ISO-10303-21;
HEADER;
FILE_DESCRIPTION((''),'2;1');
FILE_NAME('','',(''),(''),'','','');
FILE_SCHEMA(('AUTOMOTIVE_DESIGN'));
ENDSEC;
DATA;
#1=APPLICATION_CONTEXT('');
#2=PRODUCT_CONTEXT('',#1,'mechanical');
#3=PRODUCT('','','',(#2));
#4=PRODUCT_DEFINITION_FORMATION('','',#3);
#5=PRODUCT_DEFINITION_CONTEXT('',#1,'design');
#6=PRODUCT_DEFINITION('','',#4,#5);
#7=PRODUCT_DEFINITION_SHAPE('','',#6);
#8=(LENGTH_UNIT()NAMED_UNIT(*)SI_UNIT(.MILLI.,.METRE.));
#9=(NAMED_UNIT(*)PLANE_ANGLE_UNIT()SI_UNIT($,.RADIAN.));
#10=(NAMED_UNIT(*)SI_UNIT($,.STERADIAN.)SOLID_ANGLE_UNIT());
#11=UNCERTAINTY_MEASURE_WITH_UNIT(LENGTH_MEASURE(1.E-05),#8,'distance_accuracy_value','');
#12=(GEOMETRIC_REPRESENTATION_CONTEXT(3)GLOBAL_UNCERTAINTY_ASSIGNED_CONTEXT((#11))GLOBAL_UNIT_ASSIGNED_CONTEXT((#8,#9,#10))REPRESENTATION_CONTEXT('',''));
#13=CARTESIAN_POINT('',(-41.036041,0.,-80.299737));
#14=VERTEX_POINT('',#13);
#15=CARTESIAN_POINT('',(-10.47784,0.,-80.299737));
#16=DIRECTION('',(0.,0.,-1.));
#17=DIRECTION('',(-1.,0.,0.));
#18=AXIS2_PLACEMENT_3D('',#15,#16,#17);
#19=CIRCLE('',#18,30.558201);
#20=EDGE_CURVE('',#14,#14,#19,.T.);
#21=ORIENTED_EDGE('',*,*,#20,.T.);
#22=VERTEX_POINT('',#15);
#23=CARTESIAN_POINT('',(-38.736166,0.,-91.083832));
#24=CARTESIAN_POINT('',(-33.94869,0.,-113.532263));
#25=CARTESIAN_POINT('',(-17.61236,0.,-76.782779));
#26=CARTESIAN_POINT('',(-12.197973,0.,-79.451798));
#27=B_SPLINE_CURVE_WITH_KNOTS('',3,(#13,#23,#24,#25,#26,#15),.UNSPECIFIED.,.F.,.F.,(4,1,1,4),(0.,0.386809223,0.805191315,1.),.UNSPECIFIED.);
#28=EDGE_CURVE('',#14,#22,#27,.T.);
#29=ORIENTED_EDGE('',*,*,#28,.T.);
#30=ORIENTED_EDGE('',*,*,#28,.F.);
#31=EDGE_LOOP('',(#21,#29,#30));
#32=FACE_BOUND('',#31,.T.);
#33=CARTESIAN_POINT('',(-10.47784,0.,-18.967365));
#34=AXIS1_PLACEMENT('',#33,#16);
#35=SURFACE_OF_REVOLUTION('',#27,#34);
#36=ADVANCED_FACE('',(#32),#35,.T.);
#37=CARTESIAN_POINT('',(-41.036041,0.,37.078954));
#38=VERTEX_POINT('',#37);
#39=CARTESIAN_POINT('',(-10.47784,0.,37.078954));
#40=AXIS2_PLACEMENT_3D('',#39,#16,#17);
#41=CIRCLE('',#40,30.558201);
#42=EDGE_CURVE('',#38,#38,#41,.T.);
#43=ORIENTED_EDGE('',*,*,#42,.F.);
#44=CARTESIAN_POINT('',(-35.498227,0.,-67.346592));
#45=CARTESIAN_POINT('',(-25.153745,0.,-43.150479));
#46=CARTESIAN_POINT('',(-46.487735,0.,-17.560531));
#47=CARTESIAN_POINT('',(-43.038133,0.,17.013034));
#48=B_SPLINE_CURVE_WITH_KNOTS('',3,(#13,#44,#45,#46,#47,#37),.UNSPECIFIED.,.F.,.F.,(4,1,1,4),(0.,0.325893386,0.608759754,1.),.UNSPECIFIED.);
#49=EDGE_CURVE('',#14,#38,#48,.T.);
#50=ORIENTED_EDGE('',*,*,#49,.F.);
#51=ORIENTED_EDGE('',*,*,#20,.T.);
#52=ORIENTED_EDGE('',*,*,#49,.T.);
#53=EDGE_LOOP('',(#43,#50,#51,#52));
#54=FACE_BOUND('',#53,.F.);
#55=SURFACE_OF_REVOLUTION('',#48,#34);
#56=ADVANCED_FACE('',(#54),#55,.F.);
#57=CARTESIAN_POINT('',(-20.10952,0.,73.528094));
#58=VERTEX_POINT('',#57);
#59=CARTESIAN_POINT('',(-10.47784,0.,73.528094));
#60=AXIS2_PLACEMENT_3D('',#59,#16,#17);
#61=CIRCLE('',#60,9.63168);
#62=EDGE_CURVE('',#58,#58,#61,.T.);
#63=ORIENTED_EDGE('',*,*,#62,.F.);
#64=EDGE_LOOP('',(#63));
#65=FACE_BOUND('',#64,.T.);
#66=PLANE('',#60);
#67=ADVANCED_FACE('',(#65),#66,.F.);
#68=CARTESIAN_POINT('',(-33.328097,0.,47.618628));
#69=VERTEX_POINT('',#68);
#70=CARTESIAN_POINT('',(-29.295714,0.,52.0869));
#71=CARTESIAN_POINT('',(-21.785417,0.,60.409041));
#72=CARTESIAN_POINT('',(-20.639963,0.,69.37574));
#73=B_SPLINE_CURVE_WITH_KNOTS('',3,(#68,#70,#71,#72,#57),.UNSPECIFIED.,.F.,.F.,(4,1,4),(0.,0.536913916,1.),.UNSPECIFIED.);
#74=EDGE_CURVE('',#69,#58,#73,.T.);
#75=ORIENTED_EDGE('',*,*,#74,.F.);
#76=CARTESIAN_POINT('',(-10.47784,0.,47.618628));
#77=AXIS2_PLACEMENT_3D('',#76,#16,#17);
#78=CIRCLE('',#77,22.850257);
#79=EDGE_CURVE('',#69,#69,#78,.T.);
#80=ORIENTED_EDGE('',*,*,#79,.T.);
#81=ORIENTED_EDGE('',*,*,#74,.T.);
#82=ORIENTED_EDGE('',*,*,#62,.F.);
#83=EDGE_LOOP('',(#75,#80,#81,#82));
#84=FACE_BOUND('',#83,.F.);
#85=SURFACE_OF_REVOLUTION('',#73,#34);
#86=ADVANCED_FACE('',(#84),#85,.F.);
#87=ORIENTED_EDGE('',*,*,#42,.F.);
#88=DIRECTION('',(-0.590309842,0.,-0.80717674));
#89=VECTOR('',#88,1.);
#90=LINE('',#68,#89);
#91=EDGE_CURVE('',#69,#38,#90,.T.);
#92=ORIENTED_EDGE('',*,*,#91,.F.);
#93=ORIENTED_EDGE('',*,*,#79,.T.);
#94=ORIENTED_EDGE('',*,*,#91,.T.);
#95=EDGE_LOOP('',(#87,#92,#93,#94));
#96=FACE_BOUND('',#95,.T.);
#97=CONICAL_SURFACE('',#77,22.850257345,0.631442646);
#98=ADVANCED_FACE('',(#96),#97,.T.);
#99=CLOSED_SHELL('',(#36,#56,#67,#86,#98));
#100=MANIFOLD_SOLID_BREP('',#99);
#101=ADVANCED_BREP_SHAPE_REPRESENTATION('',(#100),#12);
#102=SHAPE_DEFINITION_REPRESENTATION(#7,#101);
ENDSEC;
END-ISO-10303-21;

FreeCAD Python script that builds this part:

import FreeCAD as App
import Part
import Sketcher

V = App.Vector

doc = App.newDocument("Part")
body = doc.addObject("PartDesign::Body", "Body")

# Sketch on XZ plane
sketch1 = body.newObject("Sketcher::SketchObject", "Sketch")
sketch1.AttachmentSupport = (doc.getObject("XZ_Plane"), [""])
sketch1.MapMode = "FlatFace"
sketch1.addGeometry([
    Part.LineSegment(V(-10.47784, 73.528094, 0), V(-20.10952, 73.528094, 0)),  # 0
    Part.BSplineCurve([V(-33.328097, 47.618628, 0), V(-29.295714, 52.0869, 0), V(-21.785417, 60.409041, 0), V(-20.639963, 69.37574, 0), V(-20.10952, 73.528094, 0)], [4, 1, 4], [0, 0.536913916, 1], False, 3, [1, 1, 1, 1, 1], False),  # 1
    Part.LineSegment(V(-33.328097, 47.618628, 0), V(-41.036041, 37.078954, 0)),  # 2
    Part.BSplineCurve([V(-41.036041, -80.299737, 0), V(-35.498227, -67.346592, 0), V(-25.153745, -43.150479, 0), V(-46.487735, -17.560531, 0), V(-43.038133, 17.013034, 0), V(-41.036041, 37.078954, 0)], [4, 1, 1, 4], [0, 0.325893386, 0.608759754, 1], False, 3, [1, 1, 1, 1, 1, 1], False),  # 3
    Part.BSplineCurve([V(-41.036041, -80.299737, 0), V(-38.736166, -91.083832, 0), V(-33.94869, -113.532263, 0), V(-17.61236, -76.782779, 0), V(-12.197973, -79.451798, 0), V(-10.47784, -80.299737, 0)], [4, 1, 1, 4], [0, 0.386809223, 0.805191315, 1], False, 3, [1, 1, 1, 1, 1, 1], False),  # 4
    Part.LineSegment(V(-10.47784, -80.299737, 0), V(-10.47784, 73.528094, 0)),  # 5
], False)
sketch1.addGeometry(Part.LineSegment(V(-10.47784, 73.528094, 0), V(-10.47784, -80.299737, 0)), True)  # axis
sketch1.addConstraint([
    Sketcher.Constraint("Block", 1),
    Sketcher.Constraint("Block", 3),
    Sketcher.Constraint("Block", 4),
    Sketcher.Constraint("Coincident", 0, 2, 1, 2),
    Sketcher.Constraint("Coincident", 1, 1, 2, 1),
    Sketcher.Constraint("Coincident", 2, 2, 3, 2),
    Sketcher.Constraint("Coincident", 4, 2, 5, 1),
    Sketcher.Constraint("Coincident", 5, 2, 0, 1),
    Sketcher.Constraint("Horizontal", 0),
    Sketcher.Constraint("Vertical", 5),
    Sketcher.Constraint("Vertical", 6),
    Sketcher.Constraint("Coincident", 6, 1, 5, 2),
    Sketcher.Constraint("Equal", 5, 6),
])
revolution = body.newObject("PartDesign::Revolution", "Revolution")
revolution.Profile = sketch1
revolution.ReferenceAxis = (sketch1, ["Axis0"])
revolution.Angle = 360

doc.recompute()
